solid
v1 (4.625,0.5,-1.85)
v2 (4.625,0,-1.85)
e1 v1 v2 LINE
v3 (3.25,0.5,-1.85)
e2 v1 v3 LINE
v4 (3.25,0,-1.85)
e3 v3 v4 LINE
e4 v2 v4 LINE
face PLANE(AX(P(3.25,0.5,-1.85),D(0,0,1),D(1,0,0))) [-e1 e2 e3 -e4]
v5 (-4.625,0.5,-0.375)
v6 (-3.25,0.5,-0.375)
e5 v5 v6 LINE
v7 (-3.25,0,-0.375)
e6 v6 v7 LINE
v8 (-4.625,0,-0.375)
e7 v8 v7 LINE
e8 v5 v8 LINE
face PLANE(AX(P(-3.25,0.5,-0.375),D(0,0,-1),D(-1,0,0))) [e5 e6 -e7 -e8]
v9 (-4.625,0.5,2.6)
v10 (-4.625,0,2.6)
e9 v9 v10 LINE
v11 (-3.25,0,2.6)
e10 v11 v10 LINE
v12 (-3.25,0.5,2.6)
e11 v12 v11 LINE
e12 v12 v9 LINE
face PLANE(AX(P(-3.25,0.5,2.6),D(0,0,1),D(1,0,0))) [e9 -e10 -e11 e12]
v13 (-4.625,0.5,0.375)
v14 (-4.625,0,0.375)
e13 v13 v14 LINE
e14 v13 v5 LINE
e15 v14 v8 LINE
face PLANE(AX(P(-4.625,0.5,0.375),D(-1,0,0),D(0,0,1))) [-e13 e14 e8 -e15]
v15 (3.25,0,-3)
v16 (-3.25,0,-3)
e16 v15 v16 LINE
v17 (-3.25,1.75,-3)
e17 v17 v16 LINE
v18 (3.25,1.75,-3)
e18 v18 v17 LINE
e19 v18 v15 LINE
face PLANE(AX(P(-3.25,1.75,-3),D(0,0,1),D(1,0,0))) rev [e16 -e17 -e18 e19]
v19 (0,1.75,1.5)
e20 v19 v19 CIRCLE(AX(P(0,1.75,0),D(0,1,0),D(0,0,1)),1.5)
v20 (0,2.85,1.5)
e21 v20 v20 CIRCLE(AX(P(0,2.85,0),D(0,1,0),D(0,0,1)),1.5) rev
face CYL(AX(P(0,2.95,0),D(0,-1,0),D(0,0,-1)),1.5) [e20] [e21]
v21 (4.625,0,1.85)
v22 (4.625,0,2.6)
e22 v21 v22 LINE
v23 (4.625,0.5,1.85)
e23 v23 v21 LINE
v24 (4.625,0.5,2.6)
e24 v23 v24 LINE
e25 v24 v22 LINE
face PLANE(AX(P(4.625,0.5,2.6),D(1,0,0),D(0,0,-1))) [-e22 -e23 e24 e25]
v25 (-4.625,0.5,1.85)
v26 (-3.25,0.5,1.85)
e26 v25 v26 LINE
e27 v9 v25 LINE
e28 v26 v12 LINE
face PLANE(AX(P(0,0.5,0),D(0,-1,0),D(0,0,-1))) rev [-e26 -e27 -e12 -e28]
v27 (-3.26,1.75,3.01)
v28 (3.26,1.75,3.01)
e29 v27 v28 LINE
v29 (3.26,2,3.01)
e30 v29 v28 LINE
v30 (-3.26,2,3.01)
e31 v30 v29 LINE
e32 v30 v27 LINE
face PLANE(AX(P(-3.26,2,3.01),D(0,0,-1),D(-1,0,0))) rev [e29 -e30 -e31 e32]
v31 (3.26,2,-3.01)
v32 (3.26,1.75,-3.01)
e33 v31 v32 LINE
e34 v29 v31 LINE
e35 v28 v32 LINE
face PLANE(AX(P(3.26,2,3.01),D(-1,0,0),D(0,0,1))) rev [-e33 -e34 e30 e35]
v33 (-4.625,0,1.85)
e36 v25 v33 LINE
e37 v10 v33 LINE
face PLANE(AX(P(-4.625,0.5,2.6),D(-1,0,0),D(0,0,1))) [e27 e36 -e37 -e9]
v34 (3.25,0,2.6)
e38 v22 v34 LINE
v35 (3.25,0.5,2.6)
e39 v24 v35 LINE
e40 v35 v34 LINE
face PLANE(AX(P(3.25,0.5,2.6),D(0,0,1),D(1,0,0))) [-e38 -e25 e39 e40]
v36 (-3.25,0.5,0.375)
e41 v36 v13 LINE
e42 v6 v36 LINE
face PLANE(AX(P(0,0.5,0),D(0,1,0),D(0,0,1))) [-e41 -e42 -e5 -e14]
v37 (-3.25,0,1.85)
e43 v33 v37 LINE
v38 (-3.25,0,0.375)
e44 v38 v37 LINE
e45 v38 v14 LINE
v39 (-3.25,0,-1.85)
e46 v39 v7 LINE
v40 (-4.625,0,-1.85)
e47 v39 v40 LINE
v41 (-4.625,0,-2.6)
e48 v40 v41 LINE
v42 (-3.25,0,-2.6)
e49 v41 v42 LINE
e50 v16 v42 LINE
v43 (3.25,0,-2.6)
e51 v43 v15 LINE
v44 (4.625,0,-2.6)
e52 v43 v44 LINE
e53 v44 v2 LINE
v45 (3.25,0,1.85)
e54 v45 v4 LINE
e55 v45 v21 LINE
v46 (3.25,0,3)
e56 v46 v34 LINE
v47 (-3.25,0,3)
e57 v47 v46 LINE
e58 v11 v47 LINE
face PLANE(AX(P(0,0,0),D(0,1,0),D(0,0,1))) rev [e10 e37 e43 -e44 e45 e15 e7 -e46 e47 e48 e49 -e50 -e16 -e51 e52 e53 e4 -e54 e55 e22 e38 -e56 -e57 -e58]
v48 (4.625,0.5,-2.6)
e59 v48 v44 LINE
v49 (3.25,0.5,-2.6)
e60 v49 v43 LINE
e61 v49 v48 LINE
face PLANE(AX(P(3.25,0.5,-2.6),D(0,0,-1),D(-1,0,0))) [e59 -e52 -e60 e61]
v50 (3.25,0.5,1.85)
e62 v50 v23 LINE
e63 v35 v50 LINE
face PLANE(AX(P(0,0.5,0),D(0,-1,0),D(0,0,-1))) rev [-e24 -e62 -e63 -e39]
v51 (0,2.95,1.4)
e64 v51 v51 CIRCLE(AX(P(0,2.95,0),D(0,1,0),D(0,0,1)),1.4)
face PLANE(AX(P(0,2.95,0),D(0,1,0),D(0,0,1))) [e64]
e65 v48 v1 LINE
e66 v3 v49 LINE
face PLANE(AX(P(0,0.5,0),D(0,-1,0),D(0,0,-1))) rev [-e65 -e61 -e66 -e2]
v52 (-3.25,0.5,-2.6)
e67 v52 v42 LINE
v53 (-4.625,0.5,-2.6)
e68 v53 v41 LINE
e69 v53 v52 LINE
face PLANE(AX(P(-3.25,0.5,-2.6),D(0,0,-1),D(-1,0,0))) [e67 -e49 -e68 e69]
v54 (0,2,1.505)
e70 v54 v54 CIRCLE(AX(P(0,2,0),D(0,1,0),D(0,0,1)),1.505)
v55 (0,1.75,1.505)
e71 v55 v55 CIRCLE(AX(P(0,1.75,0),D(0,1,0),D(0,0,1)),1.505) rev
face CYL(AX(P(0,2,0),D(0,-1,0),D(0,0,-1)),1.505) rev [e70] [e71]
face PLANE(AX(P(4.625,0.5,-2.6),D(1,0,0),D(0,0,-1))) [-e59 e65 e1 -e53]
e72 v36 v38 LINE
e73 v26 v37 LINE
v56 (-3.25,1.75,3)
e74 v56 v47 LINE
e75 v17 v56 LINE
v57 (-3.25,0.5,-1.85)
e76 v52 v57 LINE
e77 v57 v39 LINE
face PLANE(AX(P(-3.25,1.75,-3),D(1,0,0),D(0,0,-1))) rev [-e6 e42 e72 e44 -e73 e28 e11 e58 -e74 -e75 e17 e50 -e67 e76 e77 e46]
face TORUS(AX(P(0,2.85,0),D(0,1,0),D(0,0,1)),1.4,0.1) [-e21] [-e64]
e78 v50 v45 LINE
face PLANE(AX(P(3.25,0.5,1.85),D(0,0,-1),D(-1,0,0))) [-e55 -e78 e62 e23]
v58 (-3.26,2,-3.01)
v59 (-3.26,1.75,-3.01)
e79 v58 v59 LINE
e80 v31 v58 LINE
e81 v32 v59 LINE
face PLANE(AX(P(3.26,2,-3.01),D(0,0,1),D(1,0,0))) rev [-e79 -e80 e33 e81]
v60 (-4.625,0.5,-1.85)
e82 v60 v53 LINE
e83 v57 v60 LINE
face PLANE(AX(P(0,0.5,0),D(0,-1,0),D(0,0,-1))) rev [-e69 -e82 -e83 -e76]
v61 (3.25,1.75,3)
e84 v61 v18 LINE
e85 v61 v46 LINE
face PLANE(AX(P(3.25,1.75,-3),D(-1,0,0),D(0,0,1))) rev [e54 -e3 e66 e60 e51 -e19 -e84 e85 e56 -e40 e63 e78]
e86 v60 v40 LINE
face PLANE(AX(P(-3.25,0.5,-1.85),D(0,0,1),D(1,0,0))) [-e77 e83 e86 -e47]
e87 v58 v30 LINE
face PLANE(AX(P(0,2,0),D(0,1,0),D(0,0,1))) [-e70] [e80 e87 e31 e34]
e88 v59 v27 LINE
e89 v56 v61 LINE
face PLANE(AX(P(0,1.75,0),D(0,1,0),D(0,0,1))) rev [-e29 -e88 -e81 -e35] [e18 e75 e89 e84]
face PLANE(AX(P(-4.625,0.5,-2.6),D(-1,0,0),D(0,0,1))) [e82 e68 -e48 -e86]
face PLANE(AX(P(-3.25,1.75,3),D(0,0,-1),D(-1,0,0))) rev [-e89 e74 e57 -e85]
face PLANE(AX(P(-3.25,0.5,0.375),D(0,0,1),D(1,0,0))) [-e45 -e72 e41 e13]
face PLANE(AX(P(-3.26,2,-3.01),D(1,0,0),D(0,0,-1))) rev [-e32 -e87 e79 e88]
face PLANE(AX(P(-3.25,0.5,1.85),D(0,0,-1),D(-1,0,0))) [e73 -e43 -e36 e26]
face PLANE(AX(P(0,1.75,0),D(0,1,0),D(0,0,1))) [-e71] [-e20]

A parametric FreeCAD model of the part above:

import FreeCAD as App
import Part
import Sketcher

V = App.Vector
Q = App.Units.Quantity


def edges_at(feature, points):
    """Names of the edges that pass closest to the given points."""
    edges = feature.Shape.Edges
    near = lambda p: min(range(len(edges)), key=lambda i: edges[i].distToShape(Part.Vertex(*p))[0])
    return sorted({f"Edge{near(p) + 1}" for p in points})

doc = App.newDocument("Part")
body = doc.addObject("PartDesign::Body", "Body")

# Sketch on XZ plane
sketch1 = body.newObject("Sketcher::SketchObject", "Sketch")
sketch1.AttachmentSupport = (doc.getObject("XZ_Plane"), [""])
sketch1.MapMode = "FlatFace"
sketch1.addGeometry([
    Part.LineSegment(V(-3, -3, 0), V(-3, 3, 0)),
    Part.LineSegment(V(-3, 3, 0), V(3, 3, 0)),
    Part.LineSegment(V(3, 3, 0), V(3, -3, 0)),
    Part.LineSegment(V(3, -3, 0), V(-3, -3, 0)),
], False)
sketch1.addConstraint([
    Sketcher.Constraint("Coincident", 0, 2, 1, 1),
    Sketcher.Constraint("Coincident", 1, 2, 2, 1),
    Sketcher.Constraint("Coincident", 2, 2, 3, 1),
    Sketcher.Constraint("Coincident", 3, 2, 0, 1),
    Sketcher.Constraint("Vertical", 0),
    Sketcher.Constraint("Horizontal", 1),
    Sketcher.Constraint("Vertical", 2),
    Sketcher.Constraint("Horizontal", 3),
    Sketcher.Constraint("Symmetric", 0, 2, 2, 2, -1, 1),
    Sketcher.Constraint("DistanceY", 0, 1, 0, 2, Q("6 mm")),
    Sketcher.Constraint("DistanceX", 1, 1, 1, 2, Q("6.5 mm")),
])
pad1 = body.newObject("PartDesign::Pad", "Pad")
pad1.Profile = sketch1
pad1.Length = 1.75
pad1.Reversed = True

# Sketch on XZ plane
sketch2 = body.newObject("Sketcher::SketchObject", "Sketch001")
sketch2.AttachmentSupport = (doc.getObject("XZ_Plane"), [""])
sketch2.MapMode = "FlatFace"
sketch2.AttachmentOffset = App.Placement(V(0, 0, -1.75), App.Rotation())
sketch2.addGeometry([
    Part.LineSegment(V(-3.3, -3, 0), V(-3.3, 3, 0)),  # 0
    Part.LineSegment(V(-3.3, 3, 0), V(3.3, 3, 0)),  # 1
    Part.LineSegment(V(3.3, 3, 0), V(3.3, -3, 0)),  # 2
    Part.LineSegment(V(3.3, -3, 0), V(-3.3, -3, 0)),  # 3
    Part.Circle(V(0, 0, 0), V(0, 0, 1), 1.5),  # 4
], False)
sketch2.addConstraint([
    Sketcher.Constraint("Coincident", 0, 2, 1, 1),
    Sketcher.Constraint("Coincident", 1, 2, 2, 1),
    Sketcher.Constraint("Coincident", 2, 2, 3, 1),
    Sketcher.Constraint("Coincident", 3, 2, 0, 1),
    Sketcher.Constraint("Vertical", 0),
    Sketcher.Constraint("Horizontal", 1),
    Sketcher.Constraint("Vertical", 2),
    Sketcher.Constraint("Horizontal", 3),
    Sketcher.Constraint("Coincident", 4, 3, -1, 1),
    Sketcher.Constraint("Symmetric", 0, 2, 2, 2, -1, 1),
    Sketcher.Constraint("Diameter", 4, Q("3.01 mm")),
    Sketcher.Constraint("DistanceX", 1, 1, 1, 2, Q("6.52 mm")),
    Sketcher.Constraint("DistanceY", 0, 1, 0, 2, Q("6.02 mm")),
])
pad2 = body.newObject("PartDesign::Pad", "Pad001")
pad2.Profile = sketch2
pad2.Length = 0.25
pad2.Reversed = True

# Sketch on XZ plane
sketch3 = body.newObject("Sketcher::SketchObject", "Sketch002")
sketch3.AttachmentSupport = (doc.getObject("XZ_Plane"), [""])
sketch3.MapMode = "FlatFace"
sketch3.AttachmentOffset = App.Placement(V(0, 0, -1.75), App.Rotation())
sketch3.addGeometry(Part.Circle(V(0, 0, 0), V(0, 0, 1), 1.5), False)
sketch3.addConstraint([
    Sketcher.Constraint("Coincident", 0, 3, -1, 1),
    Sketcher.Constraint("Diameter", 0, Q("3 mm")),
])
pad3 = body.newObject("PartDesign::Pad", "Pad002")
pad3.Profile = sketch3
pad3.Length = 1.2
pad3.Reversed = True
doc.recompute()

fillet = body.newObject("PartDesign::Fillet", "Fillet")
fillet.Base = (pad3, edges_at(pad3, [(-1.5, 2.95, 0)]))
fillet.Radius = 0.1

# Sketch on XZ plane
sketch4 = body.newObject("Sketcher::SketchObject", "Sketch003")
sketch4.AttachmentSupport = (doc.getObject("XZ_Plane"), [""])
sketch4.MapMode = "FlatFace"
sketch4.addGeometry([
    Part.LineSegment(V(3.2, 2.6, 0), V(3.2, 1.9, 0)),  # 0
    Part.LineSegment(V(3.2, 1.9, 0), V(4.6, 1.9, 0)),  # 1
    Part.LineSegment(V(4.6, 1.9, 0), V(4.6, 2.6, 0)),  # 2
    Part.LineSegment(V(4.6, 2.6, 0), V(3.2, 2.6, 0)),  # 3
    Part.LineSegment(V(3.2, -1.9, 0), V(3.2, -2.6, 0)),  # 4
    Part.LineSegment(V(3.2, -2.6, 0), V(4.6, -2.6, 0)),  # 5
    Part.LineSegment(V(4.6, -2.6, 0), V(4.6, -1.9, 0)),  # 6
    Part.LineSegment(V(4.6, -1.9, 0), V(3.2, -1.9, 0)),  # 7
    Part.LineSegment(V(-4.6, -1.9, 0), V(-4.6, -2.6, 0)),  # 8
    Part.LineSegment(V(-4.6, -2.6, 0), V(-3.2, -2.6, 0)),  # 9
    Part.LineSegment(V(-3.2, -2.6, 0), V(-3.2, -1.9, 0)),  # 10
    Part.LineSegment(V(-3.2, -1.9, 0), V(-4.6, -1.9, 0)),  # 11
    Part.LineSegment(V(-4.6, 2.6, 0), V(-4.6, 1.9, 0)),  # 12
    Part.LineSegment(V(-4.6, 1.9, 0), V(-3.2, 1.9, 0)),  # 13
    Part.LineSegment(V(-3.2, 1.9, 0), V(-3.2, 2.6, 0)),  # 14
    Part.LineSegment(V(-3.2, 2.6, 0), V(-4.6, 2.6, 0)),  # 15
    Part.LineSegment(V(-4.6, 0.4, 0), V(-4.6, -0.4, 0)),  # 16
    Part.LineSegment(V(-4.6, -0.4, 0), V(-3.2, -0.4, 0)),  # 17
    Part.LineSegment(V(-3.2, -0.4, 0), V(-3.2, 0.4, 0)),  # 18
    Part.LineSegment(V(-3.2, 0.4, 0), V(-4.6, 0.4, 0)),  # 19
], False)
sketch4.addConstraint([
    Sketcher.Constraint("Coincident", 0, 2, 1, 1),
    Sketcher.Constraint("Coincident", 1, 2, 2, 1),
    Sketcher.Constraint("Coincident", 2, 2, 3, 1),
    Sketcher.Constraint("Coincident", 3, 2, 0, 1),
    Sketcher.Constraint("Coincident", 4, 2, 5, 1),
    Sketcher.Constraint("Coincident", 5, 2, 6, 1),
    Sketcher.Constraint("Coincident", 6, 2, 7, 1),
    Sketcher.Constraint("Coincident", 7, 2, 4, 1),
    Sketcher.Constraint("Coincident", 8, 2, 9, 1),
    Sketcher.Constraint("Coincident", 9, 2, 10, 1),
    Sketcher.Constraint("Coincident", 10, 2, 11, 1),
    Sketcher.Constraint("Coincident", 11, 2, 8, 1),
    Sketcher.Constraint("Coincident", 12, 2, 13, 1),
    Sketcher.Constraint("Coincident", 13, 2, 14, 1),
    Sketcher.Constraint("Coincident", 14, 2, 15, 1),
    Sketcher.Constraint("Coincident", 15, 2, 12, 1),
    Sketcher.Constraint("Coincident", 16, 2, 17, 1),
    Sketcher.Constraint("Coincident", 17, 2, 18, 1),
    Sketcher.Constraint("Coincident", 18, 2, 19, 1),
    Sketcher.Constraint("Coincident", 19, 2, 16, 1),
    Sketcher.Constraint("Vertical", 0),
    Sketcher.Constraint("Horizontal", 1),
    Sketcher.Constraint("Vertical", 2),
    Sketcher.Constraint("Horizontal", 3),
    Sketcher.Constraint("Vertical", 4),
    Sketcher.Constraint("Horizontal", 5),
    Sketcher.Constraint("Vertical", 6),
    Sketcher.Constraint("Horizontal", 7),
    Sketcher.Constraint("Vertical", 8),
    Sketcher.Constraint("Horizontal", 9),
    Sketcher.Constraint("Vertical", 10),
    Sketcher.Constraint("Horizontal", 11),
    Sketcher.Constraint("Vertical", 12),
    Sketcher.Constraint("Horizontal", 13),
    Sketcher.Constraint("Vertical", 14),
    Sketcher.Constraint("Horizontal", 15),
    Sketcher.Constraint("Vertical", 16),
    Sketcher.Constraint("Horizontal", 17),
    Sketcher.Constraint("Vertical", 18),
    Sketcher.Constraint("Horizontal", 19),
    Sketcher.Constraint("Symmetric", 2, 2, 8, 2, -1, 1),
    Sketcher.Constraint("Symmetric", 0, 2, 10, 2, -1, 1),
    Sketcher.Constraint("Symmetric", 6, 2, 12, 2, -1, 1),
    Sketcher.Constraint("Symmetric", 4, 2, 14, 2, -1, 1),
    Sketcher.Constraint("Symmetric", 5, 2, 8, 2, -2),
    Sketcher.Constraint("Symmetric", 7, 2, 10, 2, -2),
    Sketcher.Constraint("Vertical", 15, 2, 16, 2),
    Sketcher.Constraint("Vertical", 14, 2, 17, 2),
    Sketcher.Constraint("Equal", 14, 16),
    Sketcher.Constraint("DistanceY", 0, 2, 0, 1, Q("0.75 mm")),
    Sketcher.Constraint("DistanceY", -1, 1, 2, 2, Q("2.6 mm")),
    Sketcher.Constraint("DistanceX", 9, 2, 4, 2, Q("6.5 mm")),
    Sketcher.Constraint("DistanceX", 1, 1, 1, 2, Q("1.375 mm")),
    Sketcher.Constraint("DistanceY", 16, 2, -1, 1, Q("0.375 mm")),
])
pad4 = body.newObject("PartDesign::Pad", "Pad003")
pad4.Profile = sketch4
pad4.Length = 0.5
pad4.Reversed = True

doc.recompute()
